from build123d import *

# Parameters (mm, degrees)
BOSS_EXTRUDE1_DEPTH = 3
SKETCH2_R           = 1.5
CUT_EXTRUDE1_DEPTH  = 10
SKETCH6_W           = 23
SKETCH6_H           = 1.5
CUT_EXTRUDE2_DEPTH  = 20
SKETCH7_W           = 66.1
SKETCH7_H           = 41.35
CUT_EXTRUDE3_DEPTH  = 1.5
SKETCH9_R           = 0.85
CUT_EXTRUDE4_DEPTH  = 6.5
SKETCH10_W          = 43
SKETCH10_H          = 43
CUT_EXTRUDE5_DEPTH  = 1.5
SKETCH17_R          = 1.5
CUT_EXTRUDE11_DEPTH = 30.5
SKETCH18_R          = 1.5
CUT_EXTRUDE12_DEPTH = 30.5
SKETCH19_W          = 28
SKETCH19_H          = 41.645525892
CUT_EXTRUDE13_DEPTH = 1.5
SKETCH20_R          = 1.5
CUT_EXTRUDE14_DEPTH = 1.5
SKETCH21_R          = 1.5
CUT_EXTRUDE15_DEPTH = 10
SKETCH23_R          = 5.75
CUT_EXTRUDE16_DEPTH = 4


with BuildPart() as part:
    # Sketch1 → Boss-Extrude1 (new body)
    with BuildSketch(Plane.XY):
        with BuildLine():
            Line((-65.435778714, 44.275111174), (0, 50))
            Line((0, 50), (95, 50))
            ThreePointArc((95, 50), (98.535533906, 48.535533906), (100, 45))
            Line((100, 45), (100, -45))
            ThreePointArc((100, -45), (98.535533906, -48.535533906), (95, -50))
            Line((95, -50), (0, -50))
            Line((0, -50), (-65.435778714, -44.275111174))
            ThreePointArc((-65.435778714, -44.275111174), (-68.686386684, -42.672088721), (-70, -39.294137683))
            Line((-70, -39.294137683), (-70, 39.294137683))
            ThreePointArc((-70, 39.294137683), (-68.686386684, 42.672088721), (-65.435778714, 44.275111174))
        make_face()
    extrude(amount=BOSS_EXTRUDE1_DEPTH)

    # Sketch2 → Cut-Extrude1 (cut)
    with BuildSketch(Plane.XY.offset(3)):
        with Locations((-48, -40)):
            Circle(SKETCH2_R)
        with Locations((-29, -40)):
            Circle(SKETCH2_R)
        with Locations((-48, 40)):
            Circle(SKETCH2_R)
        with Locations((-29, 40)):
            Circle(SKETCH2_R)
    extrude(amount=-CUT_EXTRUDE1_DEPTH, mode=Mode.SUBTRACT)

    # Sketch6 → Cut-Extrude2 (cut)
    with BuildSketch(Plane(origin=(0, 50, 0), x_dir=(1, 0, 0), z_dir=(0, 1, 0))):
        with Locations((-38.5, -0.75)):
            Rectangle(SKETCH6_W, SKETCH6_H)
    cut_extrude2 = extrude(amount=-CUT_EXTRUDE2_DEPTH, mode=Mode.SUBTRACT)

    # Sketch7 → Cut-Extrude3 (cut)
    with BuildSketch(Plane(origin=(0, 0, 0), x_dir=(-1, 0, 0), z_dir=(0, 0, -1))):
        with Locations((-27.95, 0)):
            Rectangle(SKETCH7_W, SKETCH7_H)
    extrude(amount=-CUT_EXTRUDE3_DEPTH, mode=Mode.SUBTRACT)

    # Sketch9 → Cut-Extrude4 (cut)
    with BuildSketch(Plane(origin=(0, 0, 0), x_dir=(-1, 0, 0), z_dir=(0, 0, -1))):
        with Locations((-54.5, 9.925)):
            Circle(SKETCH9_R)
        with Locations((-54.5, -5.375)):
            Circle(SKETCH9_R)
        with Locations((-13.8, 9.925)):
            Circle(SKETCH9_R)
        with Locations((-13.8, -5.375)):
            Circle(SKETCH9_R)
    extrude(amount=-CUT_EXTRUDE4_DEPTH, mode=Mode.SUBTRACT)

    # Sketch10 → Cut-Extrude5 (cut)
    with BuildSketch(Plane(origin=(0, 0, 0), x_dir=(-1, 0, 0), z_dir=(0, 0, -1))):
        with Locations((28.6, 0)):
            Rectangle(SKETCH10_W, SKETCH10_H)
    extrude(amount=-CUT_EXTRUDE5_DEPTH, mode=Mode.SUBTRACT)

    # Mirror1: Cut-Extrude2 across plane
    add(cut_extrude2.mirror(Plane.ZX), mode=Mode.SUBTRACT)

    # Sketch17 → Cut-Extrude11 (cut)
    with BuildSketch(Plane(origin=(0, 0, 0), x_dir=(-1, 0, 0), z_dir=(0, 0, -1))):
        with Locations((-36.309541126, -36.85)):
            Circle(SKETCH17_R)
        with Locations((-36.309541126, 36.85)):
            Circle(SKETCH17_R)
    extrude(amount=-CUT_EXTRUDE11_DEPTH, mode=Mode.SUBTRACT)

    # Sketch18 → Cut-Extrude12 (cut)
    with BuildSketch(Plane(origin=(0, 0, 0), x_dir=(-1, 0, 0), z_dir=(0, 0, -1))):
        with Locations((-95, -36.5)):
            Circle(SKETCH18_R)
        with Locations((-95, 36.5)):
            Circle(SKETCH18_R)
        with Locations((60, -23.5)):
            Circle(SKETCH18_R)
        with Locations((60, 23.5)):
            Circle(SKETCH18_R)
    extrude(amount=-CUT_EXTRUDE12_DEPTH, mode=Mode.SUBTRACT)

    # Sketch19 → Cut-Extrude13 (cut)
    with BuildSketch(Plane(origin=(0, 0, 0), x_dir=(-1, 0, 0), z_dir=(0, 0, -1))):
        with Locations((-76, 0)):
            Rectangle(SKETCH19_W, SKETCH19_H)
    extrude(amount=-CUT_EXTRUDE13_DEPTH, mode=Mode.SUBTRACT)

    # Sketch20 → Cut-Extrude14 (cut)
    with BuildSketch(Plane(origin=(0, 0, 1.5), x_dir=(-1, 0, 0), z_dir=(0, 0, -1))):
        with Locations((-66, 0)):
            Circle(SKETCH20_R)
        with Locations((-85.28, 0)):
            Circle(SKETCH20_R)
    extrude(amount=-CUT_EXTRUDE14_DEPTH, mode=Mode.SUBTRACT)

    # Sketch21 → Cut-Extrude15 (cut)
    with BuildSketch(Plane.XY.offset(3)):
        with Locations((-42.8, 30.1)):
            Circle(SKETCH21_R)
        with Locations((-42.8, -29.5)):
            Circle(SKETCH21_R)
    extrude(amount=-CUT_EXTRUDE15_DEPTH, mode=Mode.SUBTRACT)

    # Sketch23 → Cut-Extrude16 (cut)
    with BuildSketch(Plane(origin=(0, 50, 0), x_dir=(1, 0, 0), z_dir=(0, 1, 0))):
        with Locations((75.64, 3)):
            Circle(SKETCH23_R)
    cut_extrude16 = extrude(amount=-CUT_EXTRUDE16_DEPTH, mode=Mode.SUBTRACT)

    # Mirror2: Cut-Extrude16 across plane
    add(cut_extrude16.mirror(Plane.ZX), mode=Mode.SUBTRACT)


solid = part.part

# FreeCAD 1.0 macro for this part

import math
import FreeCAD as App
import Part
import Sketcher
from FreeCAD import Vector
Q = App.Units.Quantity

doc = App.newDocument("Part")
body = doc.addObject("PartDesign::Body", "Body")

sketch1 = body.newObject("Sketcher::SketchObject", "Sketch")
sketch1.AttachmentSupport = (doc.getObject("XY_Plane"), [""])
sketch1.MapMode = "FlatFace"
sketch1.addGeometry([
    Part.LineSegment(Vector(0, 50, 0), Vector(-65, 44, 0)),
    Part.ArcOfCircle(Part.Circle(Vector(-65, 39, 0), Vector(0, 0, 1), 5), math.radians(95), math.radians(180)),
    Part.LineSegment(Vector(-70, 39, 0), Vector(-70, -39, 0)),
    Part.ArcOfCircle(Part.Circle(Vector(-65, -39, 0), Vector(0, 0, 1), 5), math.radians(-180), math.radians(-95)),
    Part.LineSegment(Vector(-65, -44, 0), Vector(0, -50, 0)),
    Part.LineSegment(Vector(0, -50, 0), Vector(95, -50, 0)),
    Part.ArcOfCircle(Part.Circle(Vector(95, -45, 0), Vector(0, 0, 1), 5), math.radians(-90), math.radians(0)),
    Part.LineSegment(Vector(100, -45, 0), Vector(100, 45, 0)),
    Part.ArcOfCircle(Part.Circle(Vector(95, 45, 0), Vector(0, 0, 1), 5), math.radians(0), math.radians(90)),
    Part.LineSegment(Vector(95, 50, 0), Vector(0, 50, 0)),
], False)
sketch1.addConstraint([
    Sketcher.Constraint("Tangent", 0, 2, 1, 1),
    Sketcher.Constraint("Tangent", 1, 2, 2, 1),
    Sketcher.Constraint("Tangent", 2, 2, 3, 1),
    Sketcher.Constraint("Tangent", 3, 2, 4, 1),
    Sketcher.Constraint("Coincident", 4, 2, 5, 1),
    Sketcher.Constraint("Tangent", 5, 2, 6, 1),
    Sketcher.Constraint("Tangent", 6, 2, 7, 1),
    Sketcher.Constraint("Tangent", 7, 2, 8, 1),
    Sketcher.Constraint("Tangent", 8, 2, 9, 1),
    Sketcher.Constraint("Coincident", 9, 2, 0, 1),
    Sketcher.Constraint("Vertical", 2),
    Sketcher.Constraint("Horizontal", 5),
    Sketcher.Constraint("Vertical", 7),
    Sketcher.Constraint("Horizontal", 9),
    Sketcher.Constraint("Equal", 1, 3),
    Sketcher.Constraint("Equal", 3, 6),
    Sketcher.Constraint("Equal", 6, 8),
    Sketcher.Constraint("Symmetric", 4, 2, 9, 2, -1, 1),
    Sketcher.Constraint("Symmetric", 0, 2, 3, 2, -1),
    Sketcher.Constraint("Radius", 1, Q("5 mm")),
    Sketcher.Constraint("DistanceX", 5, 1, 5, 2, Q("95 mm")),
    Sketcher.Constraint("DistanceY", 7, 1, 7, 2, Q("90 mm")),
    Sketcher.Constraint("Angle", 0, Q("-175 deg")),
    Sketcher.Constraint("DistanceX", 1, 3, -1, 1, Q("65 mm")),
])
pad1 = body.newObject("PartDesign::Pad", "Pad")
pad1.Profile = sketch1
pad1.Length = 3

sketch2 = body.newObject("Sketcher::SketchObject", "Sketch001")
sketch2.AttachmentSupport = (doc.getObject("XY_Plane"), [""])
sketch2.MapMode = "FlatFace"
sketch2.AttachmentOffset = App.Placement(Vector(0, 0, 3), App.Rotation())
sketch2.addGeometry([
    Part.Circle(Vector(-48, -40, 0), Vector(0, 0, 1), 1.5),
    Part.Circle(Vector(-29, -40, 0), Vector(0, 0, 1), 1.5),
    Part.Circle(Vector(-48, 40, 0), Vector(0, 0, 1), 1.5),
    Part.Circle(Vector(-29, 40, 0), Vector(0, 0, 1), 1.5),
], False)
sketch2.addConstraint([
    Sketcher.Constraint("Equal", 0, 1),
    Sketcher.Constraint("Equal", 1, 2),
    Sketcher.Constraint("Equal", 2, 3),
    Sketcher.Constraint("Symmetric", 0, 3, 2, 3, -1),
    Sketcher.Constraint("Symmetric", 1, 3, 3, 3, -1),
    Sketcher.Constraint("Horizontal", 0, 3, 1, 3),
    Sketcher.Constraint("Diameter", 0, Q("3 mm")),
    Sketcher.Constraint("DistanceX", 0, 3, -1, 1, Q("48 mm")),
    Sketcher.Constraint("DistanceY", 0, 3, -1, 1, Q("40 mm")),
    Sketcher.Constraint("DistanceX", 1, 3, -1, 1, Q("29 mm")),
])
pocket1 = body.newObject("PartDesign::Pocket", "Pocket")
pocket1.Profile = sketch2
pocket1.Length = 10

sketch3 = body.newObject("Sketcher::SketchObject", "Sketch002")
sketch3.AttachmentSupport = (doc.getObject("XZ_Plane"), [""])
sketch3.MapMode = "FlatFace"
sketch3.AttachmentOffset = App.Placement(Vector(0, 0, -50), App.Rotation())
sketch3.addGeometry([
    Part.LineSegment(Vector(-50, 0, 0), Vector(-50, 1.5, 0)),
    Part.LineSegment(Vector(-50, 1.5, 0), Vector(-27, 1.5, 0)),
    Part.LineSegment(Vector(-27, 1.5, 0), Vector(-27, 0, 0)),
    Part.LineSegment(Vector(-27, 0, 0), Vector(-50, 0, 0)),
], False)
sketch3.addConstraint([
    Sketcher.Constraint("Coincident", 0, 2, 1, 1),
    Sketcher.Constraint("Coincident", 1, 2, 2, 1),
    Sketcher.Constraint("Coincident", 2, 2, 3, 1),
    Sketcher.Constraint("Coincident", 3, 2, 0, 1),
    Sketcher.Constraint("Vertical", 0),
    Sketcher.Constraint("Horizontal", 1),
    Sketcher.Constraint("Vertical", 2),
    Sketcher.Constraint("Horizontal", 3),
    Sketcher.Constraint("PointOnObject", 2, 2, -1),
    Sketcher.Constraint("DistanceX", 1, 1, 1, 2, Q("23 mm")),
    Sketcher.Constraint("DistanceY", 0, 1, 0, 2, Q("1.5 mm")),
    Sketcher.Constraint("DistanceX", 0, 2, -1, 1, Q("50 mm")),
])
pocket2 = body.newObject("PartDesign::Pocket", "Pocket001")
pocket2.Profile = sketch3
pocket2.Length = 20
pocket2.Reversed = True

sketch4 = body.newObject("Sketcher::SketchObject", "Sketch003")
sketch4.AttachmentSupport = (doc.getObject("XY_Plane"), [""])
sketch4.MapMode = "FlatFace"
sketch4.addGeometry([
    Part.LineSegment(Vector(61, 21, 0), Vector(61, -21, 0)),
    Part.LineSegment(Vector(61, -21, 0), Vector(-5, -21, 0)),
    Part.LineSegment(Vector(-5, -21, 0), Vector(-5, 21, 0)),
    Part.LineSegment(Vector(-5, 21, 0), Vector(61, 21, 0)),
], False)
sketch4.addConstraint([
    Sketcher.Constraint("Coincident", 0, 2, 1, 1),
    Sketcher.Constraint("Coincident", 1, 2, 2, 1),
    Sketcher.Constraint("Coincident", 2, 2, 3, 1),
    Sketcher.Constraint("Coincident", 3, 2, 0, 1),
    Sketcher.Constraint("Vertical", 0),
    Sketcher.Constraint("Horizontal", 1),
    Sketcher.Constraint("Vertical", 2),
    Sketcher.Constraint("Horizontal", 3),
    Sketcher.Constraint("DistanceX", 1, 2, 1, 1, Q("66.1 mm")),
    Sketcher.Constraint("DistanceX", -1, 1, 0, 2, Q("61 mm")),
    Sketcher.Constraint("DistanceY", 0, 2, 0, 1, Q("41.35 mm")),
    Sketcher.Constraint("DistanceY", 0, 2, -1, 1, Q("20.675 mm")),
])
pocket3 = body.newObject("PartDesign::Pocket", "Pocket002")
pocket3.Profile = sketch4
pocket3.Length = 1.5
pocket3.Reversed = True

sketch5 = body.newObject("Sketcher::SketchObject", "Sketch004")
sketch5.AttachmentSupport = (doc.getObject("XY_Plane"), [""])
sketch5.MapMode = "FlatFace"
sketch5.addGeometry([
    Part.Circle(Vector(54.5, 9.9, 0), Vector(0, 0, 1), 0.8),
    Part.Circle(Vector(54.5, -5.4, 0), Vector(0, 0, 1), 0.8),
    Part.Circle(Vector(13.8, 9.9, 0), Vector(0, 0, 1), 0.8),
    Part.Circle(Vector(13.8, -5.4, 0), Vector(0, 0, 1), 0.8),
], False)
sketch5.addConstraint([
    Sketcher.Constraint("Equal", 0, 1),
    Sketcher.Constraint("Equal", 1, 2),
    Sketcher.Constraint("Equal", 2, 3),
    Sketcher.Constraint("Horizontal", 0, 3, 2, 3),
    Sketcher.Constraint("Horizontal", 1, 3, 3, 3),
    Sketcher.Constraint("Vertical", 0, 3, 1, 3),
    Sketcher.Constraint("Vertical", 2, 3, 3, 3),
    Sketcher.Constraint("Diameter", 0, Q("1.7 mm")),
    Sketcher.Constraint("DistanceX", -1, 1, 0, 3, Q("54.5 mm")),
    Sketcher.Constraint("DistanceX", -1, 1, 2, 3, Q("13.8 mm")),
    Sketcher.Constraint("DistanceY", 1, 3, 0, 3, Q("15.3 mm")),
    Sketcher.Constraint("DistanceY", -1, 1, 0, 3, Q("9.925 mm")),
])
pocket4 = body.newObject("PartDesign::Pocket", "Pocket003")
pocket4.Profile = sketch5
pocket4.Length = 6.5
pocket4.Reversed = True

sketch6 = body.newObject("Sketcher::SketchObject", "Sketch005")
sketch6.AttachmentSupport = (doc.getObject("XY_Plane"), [""])
sketch6.MapMode = "FlatFace"
sketch6.addGeometry([
    Part.LineSegment(Vector(-7, 22, 0), Vector(-7, -22, 0)),
    Part.LineSegment(Vector(-7, -22, 0), Vector(-50, -22, 0)),
    Part.LineSegment(Vector(-50, -22, 0), Vector(-50, 22, 0)),
    Part.LineSegment(Vector(-50, 22, 0), Vector(-7, 22, 0)),
], False)
sketch6.addConstraint([
    Sketcher.Constraint("Coincident", 0, 2, 1, 1),
    Sketcher.Constraint("Coincident", 1, 2, 2, 1),
    Sketcher.Constraint("Coincident", 2, 2, 3, 1),
    Sketcher.Constraint("Coincident", 3, 2, 0, 1),
    Sketcher.Constraint("Vertical", 0),
    Sketcher.Constraint("Horizontal", 1),
    Sketcher.Constraint("Vertical", 2),
    Sketcher.Constraint("Horizontal", 3),
    Sketcher.Constraint("Equal", 3, 0),
    Sketcher.Constraint("DistanceX", 1, 2, 1, 1, Q("43 mm")),
    Sketcher.Constraint("DistanceX", 0, 2, -1, 1, Q("7.1 mm")),
    Sketcher.Constraint("DistanceY", 0, 2, -1, 1, Q("21.5 mm")),
])
pocket5 = body.newObject("PartDesign::Pocket", "Pocket004")
pocket5.Profile = sketch6
pocket5.Length = 1.5
pocket5.Reversed = True
doc.recompute()

mirrored = body.newObject("PartDesign::Mirrored", "Mirrored")
mirrored.Originals = [pocket2]
mirrored.MirrorPlane = (doc.getObject("XZ_Plane"), [""])
body.Tip = mirrored

sketch7 = body.newObject("Sketcher::SketchObject", "Sketch006")
sketch7.AttachmentSupport = (doc.getObject("XY_Plane"), [""])
sketch7.MapMode = "FlatFace"
sketch7.addGeometry([
    Part.Circle(Vector(36.3, -36.9, 0), Vector(0, 0, 1), 1.5),
    Part.Circle(Vector(36.3, 36.9, 0), Vector(0, 0, 1), 1.5),
], False)
sketch7.addConstraint([
    Sketcher.Constraint("Equal", 0, 1),
    Sketcher.Constraint("Symmetric", 0, 3, 1, 3, -1),
    Sketcher.Constraint("Diameter", 0, Q("3 mm")),
    Sketcher.Constraint("DistanceY", 0, 3, 1, 3, Q("73.7 mm")),
    Sketcher.Constraint("DistanceX", -1, 1, 0, 3, Q("36.309541 mm")),
])
pocket6 = body.newObject("PartDesign::Pocket", "Pocket005")
pocket6.Profile = sketch7
pocket6.Length = 30.5
pocket6.Reversed = True

sketch8 = body.newObject("Sketcher::SketchObject", "Sketch007")
sketch8.AttachmentSupport = (doc.getObject("XY_Plane"), [""])
sketch8.MapMode = "FlatFace"
sketch8.addGeometry([
    Part.Circle(Vector(95, -36.5, 0), Vector(0, 0, 1), 1.5),
    Part.Circle(Vector(95, 36.5, 0), Vector(0, 0, 1), 1.5),
    Part.Circle(Vector(-60, -23.5, 0), Vector(0, 0, 1), 1.5),
    Part.Circle(Vector(-60, 23.5, 0), Vector(0, 0, 1), 1.5),
], False)
sketch8.addConstraint([
    Sketcher.Constraint("Equal", 0, 1),
    Sketcher.Constraint("Equal", 1, 2),
    Sketcher.Constraint("Equal", 2, 3),
    Sketcher.Constraint("Symmetric", 0, 3, 1, 3, -1),
    Sketcher.Constraint("Symmetric", 2, 3, 3, 3, -1),
    Sketcher.Constraint("Diameter", 0, Q("3 mm")),
    Sketcher.Constraint("DistanceX", -1, 1, 0, 3, Q("95 mm")),
    Sketcher.Constraint("DistanceX", 2, 3, -1, 1, Q("60 mm")),
    Sketcher.Constraint("DistanceY", 0, 3, 1, 3, Q("73 mm")),
    Sketcher.Constraint("DistanceY", 0, 3, 2, 3, Q("13 mm")),
])
pocket7 = body.newObject("PartDesign::Pocket", "Pocket006")
pocket7.Profile = sketch8
pocket7.Length = 30.5
pocket7.Reversed = True

sketch9 = body.newObject("Sketcher::SketchObject", "Sketch008")
sketch9.AttachmentSupport = (doc.getObject("XY_Plane"), [""])
sketch9.MapMode = "FlatFace"
sketch9.addGeometry([
    Part.LineSegment(Vector(90, 21, 0), Vector(90, -21, 0)),
    Part.LineSegment(Vector(90, -21, 0), Vector(62, -21, 0)),
    Part.LineSegment(Vector(62, -21, 0), Vector(62, 21, 0)),
    Part.LineSegment(Vector(62, 21, 0), Vector(90, 21, 0)),
], False)
sketch9.addConstraint([
    Sketcher.Constraint("Coincident", 0, 2, 1, 1),
    Sketcher.Constraint("Coincident", 1, 2, 2, 1),
    Sketcher.Constraint("Coincident", 2, 2, 3, 1),
    Sketcher.Constraint("Coincident", 3, 2, 0, 1),
    Sketcher.Constraint("Vertical", 0),
    Sketcher.Constraint("Horizontal", 1),
    Sketcher.Constraint("Vertical", 2),
    Sketcher.Constraint("Horizontal", 3),
    Sketcher.Constraint("DistanceX", 1, 2, 1, 1, Q("28 mm")),
    Sketcher.Constraint("DistanceX", -1, 1, 0, 2, Q("90 mm")),
    Sketcher.Constraint("DistanceY", 0, 2, 0, 1, Q("41.645526 mm")),
    Sketcher.Constraint("DistanceY", 0, 2, -1, 1, Q("20.822763 mm")),
])
pocket8 = body.newObject("PartDesign::Pocket", "Pocket007")
pocket8.Profile = sketch9
pocket8.Length = 1.5
pocket8.Reversed = True

sketch10 = body.newObject("Sketcher::SketchObject", "Sketch009")
sketch10.AttachmentSupport = (doc.getObject("XY_Plane"), [""])
sketch10.MapMode = "FlatFace"
sketch10.AttachmentOffset = App.Placement(Vector(0, 0, 1.5), App.Rotation())
sketch10.addGeometry([
    Part.Circle(Vector(66, 0, 0), Vector(0, 0, 1), 1.5),
    Part.Circle(Vector(85.3, 0, 0), Vector(0, 0, 1), 1.5),
], False)
sketch10.addConstraint([
    Sketcher.Constraint("Equal", 0, 1),
    Sketcher.Constraint("PointOnObject", 0, 3, -1),
    Sketcher.Constraint("PointOnObject", 1, 3, -1),
    Sketcher.Constraint("Diameter", 0, Q("3 mm")),
    Sketcher.Constraint("DistanceX", -1, 1, 0, 3, Q("66 mm")),
    Sketcher.Constraint("DistanceX", -1, 1, 1, 3, Q("85.28 mm")),
])
pocket9 = body.newObject("PartDesign::Pocket", "Pocket008")
pocket9.Profile = sketch10
pocket9.Length = 1.5
pocket9.Reversed = True

sketch11 = body.newObject("Sketcher::SketchObject", "Sketch010")
sketch11.AttachmentSupport = (doc.getObject("XY_Plane"), [""])
sketch11.MapMode = "FlatFace"
sketch11.AttachmentOffset = App.Placement(Vector(0, 0, 3), App.Rotation())
sketch11.addGeometry([
    Part.Circle(Vector(-42.8, 30.1, 0), Vector(0, 0, 1), 1.5),
    Part.Circle(Vector(-42.8, -29.5, 0), Vector(0, 0, 1), 1.5),
], False)
sketch11.addConstraint([
    Sketcher.Constraint("Equal", 0, 1),
    Sketcher.Constraint("Vertical", 0, 3, 1, 3),
    Sketcher.Constraint("Diameter", 0, Q("3 mm")),
    Sketcher.Constraint("DistanceX", 0, 3, -1, 1, Q("42.8 mm")),
    Sketcher.Constraint("DistanceY", -1, 1, 0, 3, Q("30.1 mm")),
    Sketcher.Constraint("DistanceY", 1, 3, -1, 1, Q("29.5 mm")),
])
pocket10 = body.newObject("PartDesign::Pocket", "Pocket009")
pocket10.Profile = sketch11
pocket10.Length = 10

sketch12 = body.newObject("Sketcher::SketchObject", "Sketch011")
sketch12.AttachmentSupport = (doc.getObject("XZ_Plane"), [""])
sketch12.MapMode = "FlatFace"
sketch12.AttachmentOffset = App.Placement(Vector(0, 0, -50), App.Rotation())
sketch12.addGeometry(Part.Circle(Vector(76, -3, 0), Vector(0, 0, 1), 6), False)
sketch12.addConstraint([
    Sketcher.Constraint("Diameter", 0, Q("11.5 mm")),
    Sketcher.Constraint("DistanceY", 0, 3, -1, 1, Q("3 mm")),
    Sketcher.Constraint("DistanceX", -1, 1, 0, 3, Q("75.64 mm")),
])
pocket11 = body.newObject("PartDesign::Pocket", "Pocket010")
pocket11.Profile = sketch12
pocket11.Length = 4
pocket11.Reversed = True
doc.recompute()

mirrored2 = body.newObject("PartDesign::Mirrored", "Mirrored001")
mirrored2.Originals = [pocket11]
mirrored2.MirrorPlane = (doc.getObject("XZ_Plane"), [""])
body.Tip = mirrored2

doc.recompute()
